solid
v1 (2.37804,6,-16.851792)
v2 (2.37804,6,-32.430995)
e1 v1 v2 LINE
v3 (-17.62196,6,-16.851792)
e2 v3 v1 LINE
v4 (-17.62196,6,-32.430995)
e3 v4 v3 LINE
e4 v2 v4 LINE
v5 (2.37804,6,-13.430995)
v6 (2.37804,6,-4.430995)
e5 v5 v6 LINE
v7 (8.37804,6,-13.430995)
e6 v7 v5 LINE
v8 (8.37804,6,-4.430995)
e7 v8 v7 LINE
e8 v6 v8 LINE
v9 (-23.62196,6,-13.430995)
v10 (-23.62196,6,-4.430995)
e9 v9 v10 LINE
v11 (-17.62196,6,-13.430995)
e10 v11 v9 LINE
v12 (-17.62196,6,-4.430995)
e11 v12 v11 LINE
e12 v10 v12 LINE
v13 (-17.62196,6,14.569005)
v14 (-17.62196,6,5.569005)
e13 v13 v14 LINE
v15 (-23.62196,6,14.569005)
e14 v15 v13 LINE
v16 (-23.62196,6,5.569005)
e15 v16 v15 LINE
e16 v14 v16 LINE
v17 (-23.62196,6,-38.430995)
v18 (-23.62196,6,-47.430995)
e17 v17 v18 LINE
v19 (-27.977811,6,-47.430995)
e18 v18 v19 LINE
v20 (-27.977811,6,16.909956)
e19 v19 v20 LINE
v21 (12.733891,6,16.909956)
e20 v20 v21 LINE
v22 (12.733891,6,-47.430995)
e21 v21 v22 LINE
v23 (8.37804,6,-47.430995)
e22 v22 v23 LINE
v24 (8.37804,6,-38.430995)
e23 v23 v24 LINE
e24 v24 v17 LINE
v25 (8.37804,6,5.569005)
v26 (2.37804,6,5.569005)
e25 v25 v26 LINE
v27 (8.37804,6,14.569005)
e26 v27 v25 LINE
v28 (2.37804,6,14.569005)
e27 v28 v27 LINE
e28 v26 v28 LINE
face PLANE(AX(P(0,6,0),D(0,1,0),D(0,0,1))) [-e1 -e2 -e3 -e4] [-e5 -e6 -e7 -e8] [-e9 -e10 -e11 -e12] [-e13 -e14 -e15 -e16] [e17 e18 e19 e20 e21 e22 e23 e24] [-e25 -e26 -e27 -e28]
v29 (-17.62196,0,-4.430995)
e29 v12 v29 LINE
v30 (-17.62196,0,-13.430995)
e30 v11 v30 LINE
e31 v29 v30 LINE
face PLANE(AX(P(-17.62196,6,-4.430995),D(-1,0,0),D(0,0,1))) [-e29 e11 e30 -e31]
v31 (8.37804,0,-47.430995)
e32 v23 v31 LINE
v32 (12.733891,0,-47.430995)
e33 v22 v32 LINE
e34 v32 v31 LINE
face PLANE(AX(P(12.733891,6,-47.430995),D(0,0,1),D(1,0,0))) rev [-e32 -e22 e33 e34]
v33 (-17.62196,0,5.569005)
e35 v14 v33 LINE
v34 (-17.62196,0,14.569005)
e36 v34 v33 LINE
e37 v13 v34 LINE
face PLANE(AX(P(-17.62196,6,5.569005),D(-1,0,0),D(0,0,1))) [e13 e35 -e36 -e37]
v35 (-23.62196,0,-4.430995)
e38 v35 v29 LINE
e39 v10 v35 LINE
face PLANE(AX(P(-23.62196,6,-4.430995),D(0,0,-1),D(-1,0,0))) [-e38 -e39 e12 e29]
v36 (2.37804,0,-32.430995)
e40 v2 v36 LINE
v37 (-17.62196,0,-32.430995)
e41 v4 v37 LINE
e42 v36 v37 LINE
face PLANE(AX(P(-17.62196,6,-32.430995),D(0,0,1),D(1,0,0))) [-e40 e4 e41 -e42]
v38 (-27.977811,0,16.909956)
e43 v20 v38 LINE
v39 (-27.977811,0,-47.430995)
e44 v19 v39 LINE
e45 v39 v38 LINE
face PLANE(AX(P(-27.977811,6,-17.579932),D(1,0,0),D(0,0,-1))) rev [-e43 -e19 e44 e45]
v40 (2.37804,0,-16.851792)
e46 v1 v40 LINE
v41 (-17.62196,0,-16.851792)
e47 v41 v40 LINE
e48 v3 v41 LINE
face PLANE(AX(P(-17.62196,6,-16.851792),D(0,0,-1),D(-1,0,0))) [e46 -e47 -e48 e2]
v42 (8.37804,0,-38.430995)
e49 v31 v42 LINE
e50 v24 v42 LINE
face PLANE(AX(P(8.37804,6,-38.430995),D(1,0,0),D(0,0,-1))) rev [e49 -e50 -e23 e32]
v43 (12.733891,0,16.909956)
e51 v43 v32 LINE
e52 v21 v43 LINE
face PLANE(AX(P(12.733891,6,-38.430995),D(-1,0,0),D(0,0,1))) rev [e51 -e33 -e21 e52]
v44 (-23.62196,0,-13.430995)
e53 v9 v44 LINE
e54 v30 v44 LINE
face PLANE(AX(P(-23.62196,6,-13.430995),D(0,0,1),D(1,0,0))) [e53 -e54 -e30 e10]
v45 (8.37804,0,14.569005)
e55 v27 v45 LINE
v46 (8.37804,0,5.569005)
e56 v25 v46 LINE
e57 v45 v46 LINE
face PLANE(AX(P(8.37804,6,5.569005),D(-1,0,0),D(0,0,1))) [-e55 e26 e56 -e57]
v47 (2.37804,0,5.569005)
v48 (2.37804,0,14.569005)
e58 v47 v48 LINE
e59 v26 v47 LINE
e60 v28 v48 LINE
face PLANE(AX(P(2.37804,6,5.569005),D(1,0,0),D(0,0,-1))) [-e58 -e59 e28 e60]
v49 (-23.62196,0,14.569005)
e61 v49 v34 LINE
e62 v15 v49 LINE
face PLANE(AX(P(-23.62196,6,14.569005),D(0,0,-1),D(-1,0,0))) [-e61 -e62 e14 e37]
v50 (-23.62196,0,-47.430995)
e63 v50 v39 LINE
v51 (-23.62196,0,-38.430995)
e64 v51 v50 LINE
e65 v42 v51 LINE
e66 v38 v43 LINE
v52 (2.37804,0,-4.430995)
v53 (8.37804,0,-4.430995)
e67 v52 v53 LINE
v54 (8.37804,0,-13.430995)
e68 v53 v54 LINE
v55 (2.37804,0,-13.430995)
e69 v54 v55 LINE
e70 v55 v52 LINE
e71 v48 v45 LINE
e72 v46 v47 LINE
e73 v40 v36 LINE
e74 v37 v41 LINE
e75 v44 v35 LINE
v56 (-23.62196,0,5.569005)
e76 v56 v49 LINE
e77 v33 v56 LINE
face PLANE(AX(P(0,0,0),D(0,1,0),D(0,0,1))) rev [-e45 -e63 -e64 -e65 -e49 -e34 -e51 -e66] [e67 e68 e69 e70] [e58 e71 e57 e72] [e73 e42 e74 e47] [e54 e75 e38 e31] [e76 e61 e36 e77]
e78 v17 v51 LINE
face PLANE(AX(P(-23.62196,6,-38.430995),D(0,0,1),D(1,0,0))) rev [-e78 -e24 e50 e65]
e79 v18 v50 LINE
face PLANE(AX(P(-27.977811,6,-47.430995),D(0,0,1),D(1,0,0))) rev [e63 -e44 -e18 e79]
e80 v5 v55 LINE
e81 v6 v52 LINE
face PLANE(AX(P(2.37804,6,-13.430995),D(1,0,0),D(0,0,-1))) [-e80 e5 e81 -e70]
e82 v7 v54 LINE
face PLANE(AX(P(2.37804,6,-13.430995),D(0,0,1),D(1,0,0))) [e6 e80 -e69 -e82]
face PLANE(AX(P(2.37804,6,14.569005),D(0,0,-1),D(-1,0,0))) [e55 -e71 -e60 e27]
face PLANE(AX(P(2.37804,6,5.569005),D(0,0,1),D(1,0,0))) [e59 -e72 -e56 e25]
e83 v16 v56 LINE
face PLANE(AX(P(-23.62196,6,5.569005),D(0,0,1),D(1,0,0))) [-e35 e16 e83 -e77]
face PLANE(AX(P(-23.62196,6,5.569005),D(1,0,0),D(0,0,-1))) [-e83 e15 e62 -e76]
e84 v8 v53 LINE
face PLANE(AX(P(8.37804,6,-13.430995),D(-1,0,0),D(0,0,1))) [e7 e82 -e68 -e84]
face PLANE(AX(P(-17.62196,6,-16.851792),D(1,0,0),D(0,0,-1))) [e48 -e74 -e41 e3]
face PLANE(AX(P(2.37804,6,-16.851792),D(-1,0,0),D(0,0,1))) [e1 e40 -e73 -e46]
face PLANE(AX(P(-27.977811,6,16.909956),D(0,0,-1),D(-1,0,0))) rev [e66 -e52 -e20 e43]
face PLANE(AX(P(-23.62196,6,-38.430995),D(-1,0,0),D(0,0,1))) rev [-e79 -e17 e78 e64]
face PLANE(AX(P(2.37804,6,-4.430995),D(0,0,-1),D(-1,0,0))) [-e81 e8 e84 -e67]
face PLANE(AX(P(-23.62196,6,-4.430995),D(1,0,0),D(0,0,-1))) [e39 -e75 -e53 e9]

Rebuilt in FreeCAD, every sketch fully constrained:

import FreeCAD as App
import Part
import Sketcher
Q = App.Units.Quantity

doc = App.newDocument("Part")
body = doc.addObject("PartDesign::Body", "Body")

# Sketch on XZ plane
sketch1 = body.newObject("Sketcher::SketchObject", "Sketch")
sketch1.AttachmentSupport = (doc.getObject("XZ_Plane"), [""])
sketch1.MapMode = "FlatFace"
sketch1.addGeometry([
    Part.LineSegment(App.Vector(-27.977811, 16.909956, 0), App.Vector(12.733891, 16.909956, 0)),  # 0
    Part.LineSegment(App.Vector(12.733891, 16.909956, 0), App.Vector(12.733891, -47.430995, 0)),  # 1
    Part.LineSegment(App.Vector(12.733891, -47.430995, 0), App.Vector(8.37804, -47.430995, 0)),  # 2
    Part.LineSegment(App.Vector(8.37804, -47.430995, 0), App.Vector(8.37804, -38.430995, 0)),  # 3
    Part.LineSegment(App.Vector(8.37804, -38.430995, 0), App.Vector(-23.62196, -38.430995, 0)),  # 4
    Part.LineSegment(App.Vector(-23.62196, -38.430995, 0), App.Vector(-23.62196, -47.430995, 0)),  # 5
    Part.LineSegment(App.Vector(-23.62196, -47.430995, 0), App.Vector(-27.977811, -47.430995, 0)),  # 6
    Part.LineSegment(App.Vector(-27.977811, -47.430995, 0), App.Vector(-27.977811, 16.909956, 0)),  # 7
    Part.LineSegment(App.Vector(-17.62196, 14.569005, 0), App.Vector(-23.62196, 14.569005, 0)),  # 8
    Part.LineSegment(App.Vector(-23.62196, 14.569005, 0), App.Vector(-23.62196, 5.569005, 0)),  # 9
    Part.LineSegment(App.Vector(-23.62196, 5.569005, 0), App.Vector(-17.62196, 5.569005, 0)),  # 10
    Part.LineSegment(App.Vector(-17.62196, 5.569005, 0), App.Vector(-17.62196, 14.569005, 0)),  # 11
    Part.LineSegment(App.Vector(8.37804, 14.569005, 0), App.Vector(2.37804, 14.569005, 0)),  # 12
    Part.LineSegment(App.Vector(2.37804, 14.569005, 0), App.Vector(2.37804, 5.569005, 0)),  # 13
    Part.LineSegment(App.Vector(2.37804, 5.569005, 0), App.Vector(8.37804, 5.569005, 0)),  # 14
    Part.LineSegment(App.Vector(8.37804, 5.569005, 0), App.Vector(8.37804, 14.569005, 0)),  # 15
    Part.LineSegment(App.Vector(-17.62196, -4.430995, 0), App.Vector(-23.62196, -4.430995, 0)),  # 16
    Part.LineSegment(App.Vector(-23.62196, -4.430995, 0), App.Vector(-23.62196, -13.430995, 0)),  # 17
    Part.LineSegment(App.Vector(-23.62196, -13.430995, 0), App.Vector(-17.62196, -13.430995, 0)),  # 18
    Part.LineSegment(App.Vector(-17.62196, -13.430995, 0), App.Vector(-17.62196, -4.430995, 0)),  # 19
    Part.LineSegment(App.Vector(2.37804, -16.851792, 0), App.Vector(-17.62196, -16.851792, 0)),  # 20
    Part.LineSegment(App.Vector(-17.62196, -16.851792, 0), App.Vector(-17.62196, -32.430995, 0)),  # 21
    Part.LineSegment(App.Vector(-17.62196, -32.430995, 0), App.Vector(2.37804, -32.430995, 0)),  # 22
    Part.LineSegment(App.Vector(2.37804, -32.430995, 0), App.Vector(2.37804, -16.851792, 0)),  # 23
    Part.LineSegment(App.Vector(8.37804, -4.430995, 0), App.Vector(2.37804, -4.430995, 0)),  # 24
    Part.LineSegment(App.Vector(2.37804, -4.430995, 0), App.Vector(2.37804, -13.430995, 0)),  # 25
    Part.LineSegment(App.Vector(2.37804, -13.430995, 0), App.Vector(8.37804, -13.430995, 0)),  # 26
    Part.LineSegment(App.Vector(8.37804, -13.430995, 0), App.Vector(8.37804, -4.430995, 0)),  # 27
], False)
sketch1.addConstraint([
    Sketcher.Constraint("Coincident", 0, 2, 1, 1),
    Sketcher.Constraint("Coincident", 1, 2, 2, 1),
    Sketcher.Constraint("Coincident", 2, 2, 3, 1),
    Sketcher.Constraint("Coincident", 3, 2, 4, 1),
    Sketcher.Constraint("Coincident", 4, 2, 5, 1),
    Sketcher.Constraint("Coincident", 5, 2, 6, 1),
    Sketcher.Constraint("Coincident", 6, 2, 7, 1),
    Sketcher.Constraint("Coincident", 7, 2, 0, 1),
    Sketcher.Constraint("Coincident", 8, 2, 9, 1),
    Sketcher.Constraint("Coincident", 9, 2, 10, 1),
    Sketcher.Constraint("Coincident", 10, 2, 11, 1),
    Sketcher.Constraint("Coincident", 11, 2, 8, 1),
    Sketcher.Constraint("Coincident", 12, 2, 13, 1),
    Sketcher.Constraint("Coincident", 13, 2, 14, 1),
    Sketcher.Constraint("Coincident", 14, 2, 15, 1),
    Sketcher.Constraint("Coincident", 15, 2, 12, 1),
    Sketcher.Constraint("Coincident", 16, 2, 17, 1),
    Sketcher.Constraint("Coincident", 17, 2, 18, 1),
    Sketcher.Constraint("Coincident", 18, 2, 19, 1),
    Sketcher.Constraint("Coincident", 19, 2, 16, 1),
    Sketcher.Constraint("Coincident", 20, 2, 21, 1),
    Sketcher.Constraint("Coincident", 21, 2, 22, 1),
    Sketcher.Constraint("Coincident", 22, 2, 23, 1),
    Sketcher.Constraint("Coincident", 23, 2, 20, 1),
    Sketcher.Constraint("Coincident", 24, 2, 25, 1),
    Sketcher.Constraint("Coincident", 25, 2, 26, 1),
    Sketcher.Constraint("Coincident", 26, 2, 27, 1),
    Sketcher.Constraint("Coincident", 27, 2, 24, 1),
    Sketcher.Constraint("Horizontal", 0),
    Sketcher.Constraint("Vertical", 1),
    Sketcher.Constraint("Horizontal", 2),
    Sketcher.Constraint("Vertical", 3),
    Sketcher.Constraint("Horizontal", 4),
    Sketcher.Constraint("Vertical", 5),
    Sketcher.Constraint("Horizontal", 6),
    Sketcher.Constraint("Vertical", 7),
    Sketcher.Constraint("Horizontal", 8),
    Sketcher.Constraint("Vertical", 9),
    Sketcher.Constraint("Horizontal", 10),
    Sketcher.Constraint("Vertical", 11),
    Sketcher.Constraint("Horizontal", 12),
    Sketcher.Constraint("Vertical", 13),
    Sketcher.Constraint("Horizontal", 14),
    Sketcher.Constraint("Vertical", 15),
    Sketcher.Constraint("Horizontal", 16),
    Sketcher.Constraint("Vertical", 17),
    Sketcher.Constraint("Horizontal", 18),
    Sketcher.Constraint("Vertical", 19),
    Sketcher.Constraint("Horizontal", 20),
    Sketcher.Constraint("Vertical", 21),
    Sketcher.Constraint("Horizontal", 22),
    Sketcher.Constraint("Vertical", 23),
    Sketcher.Constraint("Horizontal", 24),
    Sketcher.Constraint("Vertical", 25),
    Sketcher.Constraint("Horizontal", 26),
    Sketcher.Constraint("Vertical", 27),
    Sketcher.Constraint("Horizontal", 2, 2, 5, 2),
    Sketcher.Constraint("Horizontal", 11, 2, 12, 2),
    Sketcher.Constraint("Horizontal", 10, 2, 13, 2),
    Sketcher.Constraint("Horizontal", 19, 2, 24, 2),
    Sketcher.Constraint("Horizontal", 18, 2, 25, 2),
    Sketcher.Constraint("Vertical", 5, 2, 8, 2),
    Sketcher.Constraint("Vertical", 3, 2, 14, 2),
    Sketcher.Constraint("Vertical", 9, 2, 16, 2),
    Sketcher.Constraint("Vertical", 11, 2, 18, 2),
    Sketcher.Constraint("Vertical", 19, 2, 20, 2),
    Sketcher.Constraint("Vertical", 13, 2, 22, 2),
    Sketcher.Constraint("Vertical", 23, 2, 24, 2),
    Sketcher.Constraint("Vertical", 15, 2, 26, 2),
    Sketcher.Constraint("Equal", 2, 6),
    Sketcher.Constraint("Equal", 10, 12),
    Sketcher.Constraint("Equal", 5, 9),
    Sketcher.Constraint("Equal", 15, 17),
    Sketcher.Constraint("DistanceX", 4, 2, 4, 1, Q("32 mm")),
    Sketcher.Constraint("DistanceX", 8, 2, 8, 1, Q("6 mm")),
    Sketcher.Constraint("DistanceY", 3, 1, 3, 2, Q("9 mm")),
    Sketcher.Constraint("DistanceY", 4, 2, 8, 2, Q("53 mm")),
    Sketcher.Constraint("DistanceY", 16, 2, 9, 2, Q("10 mm")),
    Sketcher.Constraint("DistanceY", 4, 2, 21, 2, Q("6 mm")),
    Sketcher.Constraint("DistanceX", 2, 2, 2, 1, Q("4.355851 mm")),
    Sketcher.Constraint("DistanceY", 1, 2, 1, 1, Q("64.340951 mm")),
    Sketcher.Constraint("DistanceY", 21, 2, 21, 1, Q("15.579204 mm")),
    Sketcher.Constraint("DistanceX", -1, 1, 0, 2, Q("12.733891 mm")),
    Sketcher.Constraint("DistanceY", 20, 2, -1, 1, Q("16.851792 mm")),
])
pad1 = body.newObject("PartDesign::Pad", "Pad")
pad1.Profile = sketch1
pad1.Length = 6
pad1.Reversed = True

doc.recompute()
